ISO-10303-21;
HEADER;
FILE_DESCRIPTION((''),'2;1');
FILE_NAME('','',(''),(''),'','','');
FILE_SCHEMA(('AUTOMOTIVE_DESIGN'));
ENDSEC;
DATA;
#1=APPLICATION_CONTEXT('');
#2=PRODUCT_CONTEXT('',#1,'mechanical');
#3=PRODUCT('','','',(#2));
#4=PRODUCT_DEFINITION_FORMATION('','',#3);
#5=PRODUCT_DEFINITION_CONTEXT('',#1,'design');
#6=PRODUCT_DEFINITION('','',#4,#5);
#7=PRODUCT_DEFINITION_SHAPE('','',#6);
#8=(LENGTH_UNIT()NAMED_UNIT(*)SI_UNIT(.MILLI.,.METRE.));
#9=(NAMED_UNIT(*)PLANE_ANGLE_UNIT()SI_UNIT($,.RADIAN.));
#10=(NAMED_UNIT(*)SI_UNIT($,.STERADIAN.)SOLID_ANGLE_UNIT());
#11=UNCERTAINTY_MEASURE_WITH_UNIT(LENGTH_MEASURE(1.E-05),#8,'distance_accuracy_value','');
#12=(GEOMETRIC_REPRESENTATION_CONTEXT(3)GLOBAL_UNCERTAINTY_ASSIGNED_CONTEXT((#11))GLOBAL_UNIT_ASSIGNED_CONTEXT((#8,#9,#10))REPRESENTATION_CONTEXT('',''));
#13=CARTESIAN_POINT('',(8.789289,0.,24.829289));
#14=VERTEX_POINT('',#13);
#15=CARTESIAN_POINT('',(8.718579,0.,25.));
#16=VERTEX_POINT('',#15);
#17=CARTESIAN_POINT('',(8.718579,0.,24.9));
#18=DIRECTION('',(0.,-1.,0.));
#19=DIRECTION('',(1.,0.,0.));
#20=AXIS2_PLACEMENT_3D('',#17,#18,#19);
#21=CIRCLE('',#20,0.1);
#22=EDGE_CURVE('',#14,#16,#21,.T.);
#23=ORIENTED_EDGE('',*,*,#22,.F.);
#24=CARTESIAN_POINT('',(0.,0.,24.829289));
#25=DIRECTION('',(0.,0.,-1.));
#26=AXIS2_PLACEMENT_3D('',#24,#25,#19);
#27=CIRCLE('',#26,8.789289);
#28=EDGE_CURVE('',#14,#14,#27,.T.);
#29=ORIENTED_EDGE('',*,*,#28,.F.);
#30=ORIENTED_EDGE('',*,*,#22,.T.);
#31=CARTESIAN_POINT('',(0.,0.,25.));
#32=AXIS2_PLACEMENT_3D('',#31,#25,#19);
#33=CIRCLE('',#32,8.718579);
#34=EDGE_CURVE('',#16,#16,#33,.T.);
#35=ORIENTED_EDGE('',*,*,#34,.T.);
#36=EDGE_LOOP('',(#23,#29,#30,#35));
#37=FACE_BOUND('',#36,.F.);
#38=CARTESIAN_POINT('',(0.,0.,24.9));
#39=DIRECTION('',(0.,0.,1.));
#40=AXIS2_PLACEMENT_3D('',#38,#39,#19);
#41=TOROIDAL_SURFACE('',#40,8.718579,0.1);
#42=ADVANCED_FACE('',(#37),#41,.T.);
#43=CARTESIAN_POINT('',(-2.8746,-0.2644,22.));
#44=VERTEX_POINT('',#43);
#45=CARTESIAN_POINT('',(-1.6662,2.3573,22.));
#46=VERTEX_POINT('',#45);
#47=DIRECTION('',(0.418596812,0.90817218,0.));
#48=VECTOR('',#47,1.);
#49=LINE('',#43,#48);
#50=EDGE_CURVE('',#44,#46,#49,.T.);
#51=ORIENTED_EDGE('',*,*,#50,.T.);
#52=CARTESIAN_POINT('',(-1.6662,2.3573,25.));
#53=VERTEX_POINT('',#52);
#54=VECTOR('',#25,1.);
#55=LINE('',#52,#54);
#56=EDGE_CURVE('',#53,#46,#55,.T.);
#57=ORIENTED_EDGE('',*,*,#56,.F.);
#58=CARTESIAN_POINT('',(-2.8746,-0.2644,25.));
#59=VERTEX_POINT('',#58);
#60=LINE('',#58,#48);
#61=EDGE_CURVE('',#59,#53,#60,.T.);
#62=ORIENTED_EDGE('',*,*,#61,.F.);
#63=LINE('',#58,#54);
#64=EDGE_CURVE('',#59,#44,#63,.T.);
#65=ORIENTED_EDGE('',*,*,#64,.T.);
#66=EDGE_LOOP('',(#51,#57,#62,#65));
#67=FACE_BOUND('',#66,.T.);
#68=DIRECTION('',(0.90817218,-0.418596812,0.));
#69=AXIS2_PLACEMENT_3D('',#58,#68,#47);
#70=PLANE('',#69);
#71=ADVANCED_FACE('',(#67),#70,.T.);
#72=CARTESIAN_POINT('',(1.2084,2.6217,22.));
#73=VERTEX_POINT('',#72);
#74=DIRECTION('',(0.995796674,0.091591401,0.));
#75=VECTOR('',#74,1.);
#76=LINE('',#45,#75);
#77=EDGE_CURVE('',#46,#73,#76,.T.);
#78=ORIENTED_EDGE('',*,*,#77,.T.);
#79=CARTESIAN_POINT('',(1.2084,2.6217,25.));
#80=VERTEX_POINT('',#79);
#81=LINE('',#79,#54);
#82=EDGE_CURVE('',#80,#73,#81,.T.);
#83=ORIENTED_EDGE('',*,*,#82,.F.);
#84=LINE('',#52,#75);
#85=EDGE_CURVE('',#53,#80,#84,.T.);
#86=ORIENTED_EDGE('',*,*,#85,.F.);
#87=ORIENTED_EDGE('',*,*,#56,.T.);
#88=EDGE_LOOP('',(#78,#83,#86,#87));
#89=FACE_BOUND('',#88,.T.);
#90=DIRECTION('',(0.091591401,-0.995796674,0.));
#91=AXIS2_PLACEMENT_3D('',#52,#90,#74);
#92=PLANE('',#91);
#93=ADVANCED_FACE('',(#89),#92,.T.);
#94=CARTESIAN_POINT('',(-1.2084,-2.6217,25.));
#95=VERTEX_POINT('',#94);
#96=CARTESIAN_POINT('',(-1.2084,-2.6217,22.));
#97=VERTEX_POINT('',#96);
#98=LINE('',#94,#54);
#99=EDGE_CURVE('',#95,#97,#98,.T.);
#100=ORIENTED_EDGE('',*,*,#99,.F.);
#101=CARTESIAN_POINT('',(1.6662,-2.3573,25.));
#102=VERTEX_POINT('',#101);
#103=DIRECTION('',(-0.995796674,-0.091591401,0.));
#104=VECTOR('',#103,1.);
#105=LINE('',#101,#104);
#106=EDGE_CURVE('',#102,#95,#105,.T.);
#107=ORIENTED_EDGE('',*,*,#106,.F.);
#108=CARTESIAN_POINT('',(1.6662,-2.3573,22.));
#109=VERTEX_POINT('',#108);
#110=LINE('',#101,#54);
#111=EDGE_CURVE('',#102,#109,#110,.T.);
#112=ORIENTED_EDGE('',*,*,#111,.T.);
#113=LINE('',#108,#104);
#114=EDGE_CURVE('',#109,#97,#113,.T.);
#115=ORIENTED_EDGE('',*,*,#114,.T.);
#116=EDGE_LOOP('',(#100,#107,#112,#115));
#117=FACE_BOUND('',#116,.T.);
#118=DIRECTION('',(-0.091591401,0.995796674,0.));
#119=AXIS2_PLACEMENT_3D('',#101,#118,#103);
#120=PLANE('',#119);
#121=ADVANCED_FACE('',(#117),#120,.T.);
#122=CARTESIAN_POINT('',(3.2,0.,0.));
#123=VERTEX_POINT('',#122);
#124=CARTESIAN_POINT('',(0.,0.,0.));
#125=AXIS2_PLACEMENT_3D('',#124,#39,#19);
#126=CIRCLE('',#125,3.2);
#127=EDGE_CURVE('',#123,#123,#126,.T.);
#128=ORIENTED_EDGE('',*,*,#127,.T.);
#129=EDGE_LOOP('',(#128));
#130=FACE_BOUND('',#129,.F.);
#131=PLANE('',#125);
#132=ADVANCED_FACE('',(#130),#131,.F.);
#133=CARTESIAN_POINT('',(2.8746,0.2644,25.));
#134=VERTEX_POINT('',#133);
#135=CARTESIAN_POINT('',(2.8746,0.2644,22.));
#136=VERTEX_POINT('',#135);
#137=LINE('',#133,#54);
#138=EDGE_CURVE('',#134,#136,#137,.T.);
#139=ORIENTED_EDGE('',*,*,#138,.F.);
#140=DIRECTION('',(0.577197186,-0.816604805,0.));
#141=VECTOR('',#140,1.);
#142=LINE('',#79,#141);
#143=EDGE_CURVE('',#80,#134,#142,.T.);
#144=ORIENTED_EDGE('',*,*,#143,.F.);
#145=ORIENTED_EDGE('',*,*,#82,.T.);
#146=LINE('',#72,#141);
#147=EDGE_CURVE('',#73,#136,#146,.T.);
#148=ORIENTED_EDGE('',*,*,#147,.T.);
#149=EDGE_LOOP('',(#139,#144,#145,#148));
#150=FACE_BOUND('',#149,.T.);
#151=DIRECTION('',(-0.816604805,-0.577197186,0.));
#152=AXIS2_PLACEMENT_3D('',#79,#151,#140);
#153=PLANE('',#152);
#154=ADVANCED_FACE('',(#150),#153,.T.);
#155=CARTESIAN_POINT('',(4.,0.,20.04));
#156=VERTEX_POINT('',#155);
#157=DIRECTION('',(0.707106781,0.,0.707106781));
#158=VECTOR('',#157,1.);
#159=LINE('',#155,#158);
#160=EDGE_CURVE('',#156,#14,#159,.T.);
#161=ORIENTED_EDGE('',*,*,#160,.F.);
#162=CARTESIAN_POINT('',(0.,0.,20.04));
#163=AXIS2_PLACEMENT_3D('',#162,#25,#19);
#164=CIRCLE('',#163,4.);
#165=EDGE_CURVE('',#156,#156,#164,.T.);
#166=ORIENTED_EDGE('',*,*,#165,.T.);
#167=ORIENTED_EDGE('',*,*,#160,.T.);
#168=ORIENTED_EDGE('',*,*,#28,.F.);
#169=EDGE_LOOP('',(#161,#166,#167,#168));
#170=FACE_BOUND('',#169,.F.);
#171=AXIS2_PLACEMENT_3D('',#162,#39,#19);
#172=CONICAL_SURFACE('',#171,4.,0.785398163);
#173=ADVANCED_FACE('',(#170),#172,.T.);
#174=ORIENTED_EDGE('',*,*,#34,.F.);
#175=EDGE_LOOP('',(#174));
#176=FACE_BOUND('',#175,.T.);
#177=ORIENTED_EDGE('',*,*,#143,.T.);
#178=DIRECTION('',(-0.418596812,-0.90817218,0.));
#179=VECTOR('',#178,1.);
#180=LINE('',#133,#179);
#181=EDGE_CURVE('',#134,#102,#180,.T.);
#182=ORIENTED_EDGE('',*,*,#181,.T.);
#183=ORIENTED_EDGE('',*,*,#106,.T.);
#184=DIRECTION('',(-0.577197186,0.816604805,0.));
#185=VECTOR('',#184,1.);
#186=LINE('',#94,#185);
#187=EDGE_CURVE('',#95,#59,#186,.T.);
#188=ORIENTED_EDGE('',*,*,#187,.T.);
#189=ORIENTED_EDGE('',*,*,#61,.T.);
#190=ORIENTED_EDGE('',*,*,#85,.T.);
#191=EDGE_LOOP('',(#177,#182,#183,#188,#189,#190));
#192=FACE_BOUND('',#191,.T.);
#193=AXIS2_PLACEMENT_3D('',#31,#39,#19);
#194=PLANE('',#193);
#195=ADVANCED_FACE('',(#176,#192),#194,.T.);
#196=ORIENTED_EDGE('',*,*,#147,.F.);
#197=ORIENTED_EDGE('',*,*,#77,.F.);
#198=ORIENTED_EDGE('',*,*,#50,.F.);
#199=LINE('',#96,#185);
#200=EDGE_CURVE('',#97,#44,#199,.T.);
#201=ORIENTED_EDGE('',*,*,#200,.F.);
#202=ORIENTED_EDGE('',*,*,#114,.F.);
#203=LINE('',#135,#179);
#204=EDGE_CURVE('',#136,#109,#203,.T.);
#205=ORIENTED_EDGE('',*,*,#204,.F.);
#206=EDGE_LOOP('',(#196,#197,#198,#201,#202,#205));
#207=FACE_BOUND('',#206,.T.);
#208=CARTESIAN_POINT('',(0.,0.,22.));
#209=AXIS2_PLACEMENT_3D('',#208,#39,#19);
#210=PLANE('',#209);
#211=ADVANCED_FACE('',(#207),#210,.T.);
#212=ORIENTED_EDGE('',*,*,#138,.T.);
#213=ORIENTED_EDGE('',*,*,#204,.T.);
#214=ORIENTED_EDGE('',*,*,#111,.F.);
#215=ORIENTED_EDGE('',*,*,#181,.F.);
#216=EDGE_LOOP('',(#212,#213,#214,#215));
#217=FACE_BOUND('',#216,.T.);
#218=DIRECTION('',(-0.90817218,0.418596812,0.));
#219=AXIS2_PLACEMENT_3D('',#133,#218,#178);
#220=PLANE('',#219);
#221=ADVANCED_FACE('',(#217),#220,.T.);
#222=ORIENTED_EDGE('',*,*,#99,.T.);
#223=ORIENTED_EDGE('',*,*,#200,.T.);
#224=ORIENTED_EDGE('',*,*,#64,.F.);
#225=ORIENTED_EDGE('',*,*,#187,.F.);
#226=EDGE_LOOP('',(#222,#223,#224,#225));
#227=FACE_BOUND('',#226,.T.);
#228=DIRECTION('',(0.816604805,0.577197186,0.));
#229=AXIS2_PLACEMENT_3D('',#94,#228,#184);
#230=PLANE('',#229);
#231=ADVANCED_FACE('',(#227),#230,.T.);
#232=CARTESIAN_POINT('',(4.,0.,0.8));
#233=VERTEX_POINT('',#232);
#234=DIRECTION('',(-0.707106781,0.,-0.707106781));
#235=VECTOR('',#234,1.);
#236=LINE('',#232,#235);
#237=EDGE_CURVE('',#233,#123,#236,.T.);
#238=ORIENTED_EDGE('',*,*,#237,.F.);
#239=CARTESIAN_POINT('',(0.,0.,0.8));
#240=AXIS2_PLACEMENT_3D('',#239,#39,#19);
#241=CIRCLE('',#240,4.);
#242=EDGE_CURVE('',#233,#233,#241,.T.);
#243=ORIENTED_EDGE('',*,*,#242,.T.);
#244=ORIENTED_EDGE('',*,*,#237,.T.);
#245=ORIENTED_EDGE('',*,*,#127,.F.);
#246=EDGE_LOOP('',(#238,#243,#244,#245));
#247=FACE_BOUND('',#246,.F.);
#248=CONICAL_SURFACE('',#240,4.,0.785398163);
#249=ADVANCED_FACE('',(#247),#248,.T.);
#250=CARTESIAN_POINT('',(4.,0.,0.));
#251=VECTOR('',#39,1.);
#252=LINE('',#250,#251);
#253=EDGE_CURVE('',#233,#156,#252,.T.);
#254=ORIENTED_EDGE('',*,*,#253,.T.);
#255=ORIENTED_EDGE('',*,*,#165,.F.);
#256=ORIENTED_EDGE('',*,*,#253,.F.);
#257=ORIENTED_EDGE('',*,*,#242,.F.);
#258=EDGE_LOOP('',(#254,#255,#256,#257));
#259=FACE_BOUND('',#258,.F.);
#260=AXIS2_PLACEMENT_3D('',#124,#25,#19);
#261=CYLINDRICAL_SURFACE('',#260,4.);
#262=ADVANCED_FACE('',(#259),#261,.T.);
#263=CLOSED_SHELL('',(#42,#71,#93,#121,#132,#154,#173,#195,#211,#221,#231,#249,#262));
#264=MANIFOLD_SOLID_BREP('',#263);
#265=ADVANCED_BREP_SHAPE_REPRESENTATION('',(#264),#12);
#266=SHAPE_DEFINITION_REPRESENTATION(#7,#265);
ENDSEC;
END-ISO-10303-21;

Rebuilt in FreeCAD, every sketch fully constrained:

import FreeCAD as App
import Part
import Sketcher

V = App.Vector
Q = App.Units.Quantity


def edges_at(feature, points):
    """Names of the edges that pass closest to the given points."""
    edges = feature.Shape.Edges
    near = lambda p: min(range(len(edges)), key=lambda i: edges[i].distToShape(Part.Vertex(*p))[0])
    return sorted({f"Edge{near(p) + 1}" for p in points})


def add_polygon(sketch, points):
    """Adds a closed chain of lines whose ends are joined by coincident constraints."""
    first, n = sketch.GeometryCount, len(points)
    for a, b in zip(points, points[1:] + points[:1]):
        sketch.addGeometry(Part.LineSegment(App.Vector(*a, 0), App.Vector(*b, 0)), False)
    for i in range(n):
        sketch.addConstraint(Sketcher.Constraint("Coincident", first + i, 2, first + (i + 1) % n, 1))

doc = App.newDocument("Part")
params = doc.addObject("Spreadsheet::Sheet", "Params")
for row, (alias, value) in enumerate([
    ("sketch1_diameter", "8 mm"),
    ("pad1_length", "20.04 mm"),
    ("sketch2_diameter", "8 mm"),
    ("pad2_length", "4.96 mm"),
    ("pad2_taper", "45 deg"),
    ("pocket1_length", "3 mm"),
    ("chamfer_size", "0.8 mm"),
    ("fillet_radius", "0.1 mm"),
], start=1):
    params.set(f"A{row}", alias)
    params.set(f"B{row}", "=" + value)
    params.setAlias(f"B{row}", alias)

body = doc.addObject("PartDesign::Body", "Body")

# Sketch on XY plane
sketch1 = body.newObject("Sketcher::SketchObject", "Sketch")
sketch1.AttachmentSupport = (doc.getObject("XY_Plane"), [""])
sketch1.MapMode = "FlatFace"
sketch1.addGeometry(Part.Circle(V(0, 0, 0), V(0, 0, 1), 4), False)
sketch1.addConstraint([
    Sketcher.Constraint("Coincident", 0, 3, -1, 1),
    Sketcher.Constraint("Diameter", 0, Q("8 mm")),
])
sketch1.setExpression("Constraints[1]", "Params.sketch1_diameter")
pad1 = body.newObject("PartDesign::Pad", "Pad")
pad1.Profile = sketch1
pad1.setExpression("Length", "Params.pad1_length")

# Sketch on XY plane
sketch2 = body.newObject("Sketcher::SketchObject", "Sketch001")
sketch2.AttachmentSupport = (doc.getObject("XY_Plane"), [""])
sketch2.MapMode = "FlatFace"
sketch2.AttachmentOffset = App.Placement(V(0, 0, 20.04), App.Rotation())
sketch2.addGeometry(Part.Circle(V(0, 0, 0), V(0, 0, 1), 4), False)
sketch2.addConstraint([
    Sketcher.Constraint("Coincident", 0, 3, -1, 1),
    Sketcher.Constraint("Diameter", 0, Q("8 mm")),
])
sketch2.setExpression("Constraints[1]", "Params.sketch2_diameter")
pad2 = body.newObject("PartDesign::Pad", "Pad001")
pad2.Profile = sketch2
pad2.setExpression("Length", "Params.pad2_length")
pad2.setExpression("TaperAngle", "Params.pad2_taper")

# Sketch on XY plane
sketch3 = body.newObject("Sketcher::SketchObject", "Sketch002")
sketch3.AttachmentSupport = (doc.getObject("XY_Plane"), [""])
sketch3.MapMode = "FlatFace"
sketch3.AttachmentOffset = App.Placement(V(0, 0, 25), App.Rotation())
add_polygon(sketch3, [(2.8746, 0.2644), (1.2084, 2.6217), (-1.6662, 2.3573), (-2.8746, -0.2644), (-1.2084, -2.6217), (1.6662, -2.3573)])  # lines 0-5
sketch3.addConstraint([
    Sketcher.Constraint("Symmetric", 0, 2, 3, 2, -1, 1),
    Sketcher.Constraint("Symmetric", 1, 2, 4, 2, -1, 1),
    Sketcher.Constraint("Symmetric", 2, 2, 5, 2, -1, 1),
    Sketcher.Constraint("Equal", 0, 1),
    Sketcher.Constraint("Equal", 1, 2),
    Sketcher.Constraint("DistanceX", 2, 2, 0, 2, Q("4.083 mm")),
    Sketcher.Constraint("DistanceY", 2, 2, 0, 2, Q("2.886 mm")),
    Sketcher.Constraint("DistanceY", 3, 2, 1, 2, Q("4.979 mm")),
    Sketcher.Constraint("Distance", 0, Q("2.8867 mm")),
])
pocket1 = body.newObject("PartDesign::Pocket", "Pocket")
pocket1.Profile = sketch3
pocket1.setExpression("Length", "Params.pocket1_length")
doc.recompute()

chamfer = body.newObject("PartDesign::Chamfer", "Chamfer")
chamfer.Base = (pocket1, edges_at(pocket1, [(-4, 0, 0)]))
chamfer.setExpression("Size", "Params.chamfer_size")
doc.recompute()

fillet = body.newObject("PartDesign::Fillet", "Fillet")
fillet.Base = (chamfer, edges_at(chamfer, [(-8.96, 0, 25)]))
fillet.setExpression("Radius", "Params.fillet_radius")

doc.recompute()
